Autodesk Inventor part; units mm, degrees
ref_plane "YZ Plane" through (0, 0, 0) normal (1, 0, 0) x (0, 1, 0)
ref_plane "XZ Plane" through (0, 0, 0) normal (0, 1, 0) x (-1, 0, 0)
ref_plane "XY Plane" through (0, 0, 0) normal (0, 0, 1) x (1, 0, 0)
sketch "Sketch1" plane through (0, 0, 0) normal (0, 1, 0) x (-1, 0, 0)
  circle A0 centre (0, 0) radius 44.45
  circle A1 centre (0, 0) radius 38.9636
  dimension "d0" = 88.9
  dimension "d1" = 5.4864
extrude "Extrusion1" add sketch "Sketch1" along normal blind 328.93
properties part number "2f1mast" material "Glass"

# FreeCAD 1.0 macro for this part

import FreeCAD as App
import Part
import Sketcher

V = App.Vector
Q = App.Units.Quantity

doc = App.newDocument("Part")
body = doc.addObject("PartDesign::Body", "Body")

# Sketch on XZ plane
sketch1 = body.newObject("Sketcher::SketchObject", "Sketch")
sketch1.AttachmentSupport = (doc.getObject("XZ_Plane"), [""])
sketch1.MapMode = "FlatFace"
sketch1.addGeometry([
    Part.Circle(V(0, 0, 0), V(0, 0, 1), 44.45),
    Part.Circle(V(0, 0, 0), V(0, 0, 1), 38.9636),
], False)
sketch1.addConstraint([
    Sketcher.Constraint("Coincident", 0, 3, -1, 1),
    Sketcher.Constraint("Coincident", 1, 3, -1, 1),
    Sketcher.Constraint("Diameter", 0, Q("3.5 in")),
    Sketcher.Constraint("Diameter", 1, Q("3.068 in")),
])
pad1 = body.newObject("PartDesign::Pad", "Pad")
pad1.Profile = sketch1
pad1.Length = Q("12.95 in")
pad1.Reversed = True

doc.recompute()
